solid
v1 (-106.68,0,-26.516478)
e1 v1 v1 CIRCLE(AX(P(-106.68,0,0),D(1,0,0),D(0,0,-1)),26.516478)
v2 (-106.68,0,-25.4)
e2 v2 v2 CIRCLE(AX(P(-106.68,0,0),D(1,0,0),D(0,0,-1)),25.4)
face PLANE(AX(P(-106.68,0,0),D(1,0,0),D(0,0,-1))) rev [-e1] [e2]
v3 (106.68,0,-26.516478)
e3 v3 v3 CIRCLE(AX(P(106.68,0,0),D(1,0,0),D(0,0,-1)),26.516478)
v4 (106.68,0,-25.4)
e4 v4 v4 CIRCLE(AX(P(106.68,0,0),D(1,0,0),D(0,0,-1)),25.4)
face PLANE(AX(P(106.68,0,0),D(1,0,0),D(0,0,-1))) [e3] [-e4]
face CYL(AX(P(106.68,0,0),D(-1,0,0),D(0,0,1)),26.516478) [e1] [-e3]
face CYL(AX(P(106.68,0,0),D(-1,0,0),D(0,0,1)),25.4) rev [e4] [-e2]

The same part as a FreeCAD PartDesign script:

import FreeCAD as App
import Part
import Sketcher

V = App.Vector
Q = App.Units.Quantity

doc = App.newDocument("Part")
body = doc.addObject("PartDesign::Body", "Body")

# Sketch on YZ plane
sketch1 = doc.addObject("Sketcher::SketchObject", "Sketch")
body.addObject(sketch1)
sketch1.AttachmentSupport = (doc.YZ_Plane, [""])
sketch1.MapMode = "FlatFace"
sketch1.addGeometry(Part.Circle(V(0, 0, 0), V(0, 0, 1), 26.516478), False)
sketch1.addGeometry(Part.Circle(V(0, 0, 0), V(0, 0, 1), 25.4), False)
sketch1.addConstraint(Sketcher.Constraint("Coincident", 0, 3, -1, 1))
sketch1.addConstraint(Sketcher.Constraint("Coincident", 1, 3, -1, 1))
sketch1.addConstraint(Sketcher.Constraint("Diameter", 1, Q("2 in")))
sketch1.addConstraint(Sketcher.Constraint("Diameter", 0, 53.032956))
pad1 = doc.addObject("PartDesign::Pad", "Pad")
body.addObject(pad1)
pad1.Profile = sketch1
pad1.Length = Q("8.4 in")
pad1.Midplane = True

doc.recompute()
